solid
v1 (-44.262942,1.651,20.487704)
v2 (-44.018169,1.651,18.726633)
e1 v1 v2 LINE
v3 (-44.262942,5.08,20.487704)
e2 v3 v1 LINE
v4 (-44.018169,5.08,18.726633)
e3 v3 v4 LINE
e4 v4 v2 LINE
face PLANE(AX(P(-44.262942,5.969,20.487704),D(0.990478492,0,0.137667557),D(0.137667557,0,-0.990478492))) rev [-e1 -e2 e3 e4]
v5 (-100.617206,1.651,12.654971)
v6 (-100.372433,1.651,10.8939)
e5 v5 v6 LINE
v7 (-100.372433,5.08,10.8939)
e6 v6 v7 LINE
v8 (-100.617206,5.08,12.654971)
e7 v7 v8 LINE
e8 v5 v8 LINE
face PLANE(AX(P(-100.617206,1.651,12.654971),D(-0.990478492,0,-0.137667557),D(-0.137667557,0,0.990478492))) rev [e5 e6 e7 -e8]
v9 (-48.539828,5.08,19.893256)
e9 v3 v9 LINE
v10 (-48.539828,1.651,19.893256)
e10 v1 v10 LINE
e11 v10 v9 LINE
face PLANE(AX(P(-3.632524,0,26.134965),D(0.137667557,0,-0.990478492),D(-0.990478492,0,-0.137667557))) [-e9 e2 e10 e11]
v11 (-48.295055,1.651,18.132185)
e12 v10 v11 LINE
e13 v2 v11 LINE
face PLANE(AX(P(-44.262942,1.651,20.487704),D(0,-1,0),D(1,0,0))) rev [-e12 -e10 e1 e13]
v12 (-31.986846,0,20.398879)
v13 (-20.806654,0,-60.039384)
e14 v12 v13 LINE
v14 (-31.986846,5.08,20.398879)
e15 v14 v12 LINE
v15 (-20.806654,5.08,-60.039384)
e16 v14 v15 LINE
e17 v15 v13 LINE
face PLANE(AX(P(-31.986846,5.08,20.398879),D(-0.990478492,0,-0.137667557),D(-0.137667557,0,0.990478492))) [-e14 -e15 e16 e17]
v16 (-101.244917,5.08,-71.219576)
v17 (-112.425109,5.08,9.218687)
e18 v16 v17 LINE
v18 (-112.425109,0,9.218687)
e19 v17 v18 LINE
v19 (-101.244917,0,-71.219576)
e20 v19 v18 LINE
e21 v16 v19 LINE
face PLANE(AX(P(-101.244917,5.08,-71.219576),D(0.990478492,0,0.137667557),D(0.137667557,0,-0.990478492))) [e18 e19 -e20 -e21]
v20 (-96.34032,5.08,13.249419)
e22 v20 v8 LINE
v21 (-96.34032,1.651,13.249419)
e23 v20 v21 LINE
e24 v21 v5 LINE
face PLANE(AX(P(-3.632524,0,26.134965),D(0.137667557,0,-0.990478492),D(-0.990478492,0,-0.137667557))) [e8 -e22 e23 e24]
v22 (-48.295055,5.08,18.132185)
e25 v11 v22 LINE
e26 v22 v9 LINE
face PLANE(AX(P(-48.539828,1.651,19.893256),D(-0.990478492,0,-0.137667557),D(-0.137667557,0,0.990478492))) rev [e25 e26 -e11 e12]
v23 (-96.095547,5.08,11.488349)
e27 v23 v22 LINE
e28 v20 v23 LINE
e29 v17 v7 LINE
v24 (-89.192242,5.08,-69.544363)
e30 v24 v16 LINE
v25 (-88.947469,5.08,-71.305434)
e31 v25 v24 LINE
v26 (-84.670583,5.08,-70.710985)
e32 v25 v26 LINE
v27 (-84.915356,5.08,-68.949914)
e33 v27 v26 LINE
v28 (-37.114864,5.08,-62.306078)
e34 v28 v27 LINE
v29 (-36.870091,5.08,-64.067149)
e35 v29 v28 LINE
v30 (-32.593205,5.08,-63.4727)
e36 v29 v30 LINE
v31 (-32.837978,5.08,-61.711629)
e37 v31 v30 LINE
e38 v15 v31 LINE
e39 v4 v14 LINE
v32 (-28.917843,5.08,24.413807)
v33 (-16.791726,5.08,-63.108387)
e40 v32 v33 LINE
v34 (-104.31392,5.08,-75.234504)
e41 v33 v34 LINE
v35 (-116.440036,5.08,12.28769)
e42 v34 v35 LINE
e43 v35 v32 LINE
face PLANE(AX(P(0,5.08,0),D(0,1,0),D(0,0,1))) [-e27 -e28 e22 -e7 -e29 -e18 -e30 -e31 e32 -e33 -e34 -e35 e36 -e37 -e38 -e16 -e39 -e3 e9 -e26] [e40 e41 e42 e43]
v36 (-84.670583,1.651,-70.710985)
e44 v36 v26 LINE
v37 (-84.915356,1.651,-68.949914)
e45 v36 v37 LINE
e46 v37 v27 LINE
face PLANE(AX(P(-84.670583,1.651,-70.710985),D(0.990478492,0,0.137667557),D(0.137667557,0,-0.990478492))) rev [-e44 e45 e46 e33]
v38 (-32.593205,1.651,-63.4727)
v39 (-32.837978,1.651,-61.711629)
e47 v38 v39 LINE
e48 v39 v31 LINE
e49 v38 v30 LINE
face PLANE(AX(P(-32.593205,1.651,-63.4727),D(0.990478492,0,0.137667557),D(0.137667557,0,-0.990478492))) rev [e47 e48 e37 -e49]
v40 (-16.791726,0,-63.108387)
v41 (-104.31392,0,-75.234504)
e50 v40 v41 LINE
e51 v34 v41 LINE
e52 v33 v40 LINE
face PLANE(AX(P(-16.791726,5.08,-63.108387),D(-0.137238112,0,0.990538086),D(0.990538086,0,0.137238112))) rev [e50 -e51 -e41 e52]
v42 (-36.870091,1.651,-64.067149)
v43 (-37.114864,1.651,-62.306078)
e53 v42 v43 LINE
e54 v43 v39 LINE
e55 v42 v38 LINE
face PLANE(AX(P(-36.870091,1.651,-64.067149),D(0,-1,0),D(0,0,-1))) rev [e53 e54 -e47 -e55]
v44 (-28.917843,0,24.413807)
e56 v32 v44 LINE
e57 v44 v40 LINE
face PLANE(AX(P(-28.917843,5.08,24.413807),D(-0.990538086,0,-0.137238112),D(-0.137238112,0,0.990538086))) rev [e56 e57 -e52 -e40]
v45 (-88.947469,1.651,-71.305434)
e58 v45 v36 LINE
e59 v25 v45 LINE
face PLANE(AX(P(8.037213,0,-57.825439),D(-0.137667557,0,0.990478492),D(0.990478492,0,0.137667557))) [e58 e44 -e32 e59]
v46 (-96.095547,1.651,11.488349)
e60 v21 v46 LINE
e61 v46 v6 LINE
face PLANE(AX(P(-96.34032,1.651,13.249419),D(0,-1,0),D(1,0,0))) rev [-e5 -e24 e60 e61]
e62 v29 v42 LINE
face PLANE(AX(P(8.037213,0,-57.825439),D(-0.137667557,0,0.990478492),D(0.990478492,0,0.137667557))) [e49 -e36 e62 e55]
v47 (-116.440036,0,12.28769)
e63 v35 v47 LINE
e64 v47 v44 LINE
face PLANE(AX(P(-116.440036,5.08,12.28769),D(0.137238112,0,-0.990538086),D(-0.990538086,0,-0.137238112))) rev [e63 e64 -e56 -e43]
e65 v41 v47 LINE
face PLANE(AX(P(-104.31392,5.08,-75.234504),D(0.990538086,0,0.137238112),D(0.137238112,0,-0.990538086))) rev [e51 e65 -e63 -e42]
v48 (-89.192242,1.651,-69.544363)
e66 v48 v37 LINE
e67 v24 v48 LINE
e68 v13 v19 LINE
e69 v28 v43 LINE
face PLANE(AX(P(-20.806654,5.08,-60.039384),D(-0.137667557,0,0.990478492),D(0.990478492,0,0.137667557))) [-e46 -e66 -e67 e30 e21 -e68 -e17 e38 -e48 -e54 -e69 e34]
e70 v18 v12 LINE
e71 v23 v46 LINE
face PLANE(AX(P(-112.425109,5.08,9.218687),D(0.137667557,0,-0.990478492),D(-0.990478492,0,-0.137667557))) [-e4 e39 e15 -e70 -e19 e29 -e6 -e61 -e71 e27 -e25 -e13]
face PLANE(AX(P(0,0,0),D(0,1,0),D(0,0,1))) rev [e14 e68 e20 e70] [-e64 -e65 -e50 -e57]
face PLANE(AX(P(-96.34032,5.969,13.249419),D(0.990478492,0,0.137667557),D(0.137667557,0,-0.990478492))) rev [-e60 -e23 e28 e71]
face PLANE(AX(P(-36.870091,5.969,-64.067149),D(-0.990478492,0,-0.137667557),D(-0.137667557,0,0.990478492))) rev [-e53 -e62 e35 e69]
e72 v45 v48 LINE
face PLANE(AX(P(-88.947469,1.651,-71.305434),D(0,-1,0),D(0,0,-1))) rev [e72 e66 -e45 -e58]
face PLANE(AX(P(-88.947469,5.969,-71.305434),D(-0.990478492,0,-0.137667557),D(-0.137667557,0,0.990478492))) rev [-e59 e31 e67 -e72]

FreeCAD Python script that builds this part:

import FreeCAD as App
import Part
import Sketcher
from FreeCAD import Vector
Q = App.Units.Quantity


def add_polygon(sketch, points):
    """Adds a closed chain of lines whose ends are joined by coincident constraints."""
    first, n = sketch.GeometryCount, len(points)
    for a, b in zip(points, points[1:] + points[:1]):
        sketch.addGeometry(Part.LineSegment(App.Vector(*a, 0), App.Vector(*b, 0)), False)
    for i in range(n):
        sketch.addConstraint(Sketcher.Constraint("Coincident", first + i, 2, first + (i + 1) % n, 1))

doc = App.newDocument("Part")
body = doc.addObject("PartDesign::Body", "Body")

# Sketch on XZ plane
sketch1 = body.newObject("Sketcher::SketchObject", "Sketch")
sketch1.AttachmentSupport = (doc.getObject("XZ_Plane"), [""])
sketch1.MapMode = "FlatFace"
add_polygon(sketch1, [(-29, 24), (-17, -63), (-104, -75), (-116, 12)])  # lines 0-3
add_polygon(sketch1, [(-101, -71), (-21, -60), (-32, 20), (-112, 9)])  # lines 4-7
sketch1.addConstraint([
    Sketcher.Constraint("Perpendicular", 0, 1),
    Sketcher.Constraint("Perpendicular", 1, 2),
    Sketcher.Constraint("Perpendicular", 2, 3),
    Sketcher.Constraint("Perpendicular", 4, 5),
    Sketcher.Constraint("Perpendicular", 5, 6),
    Sketcher.Constraint("Perpendicular", 6, 7),
    Sketcher.Constraint("Equal", 0, 1),
    Sketcher.Constraint("Equal", 4, 5),
    Sketcher.Constraint("Distance", 0, Q("88.358231 mm")),
    Sketcher.Constraint("Distance", 4, Q("81.211519 mm")),
    Sketcher.Constraint("DistanceX", 1, 2, -1, 1, Q("104.31392 mm")),
    Sketcher.Constraint("DistanceY", -1, 1, 2, 2, Q("12.28769 mm")),
    Sketcher.Constraint("DistanceY", -1, 1, 5, 2, Q("20.398879 mm")),
    Sketcher.Constraint("DistanceX", 6, 2, -1, 1, Q("112.425109 mm")),
    Sketcher.Constraint("DistanceX", 2, 2, 0, 2, Q("99.64831 mm")),
    Sketcher.Constraint("DistanceX", 3, 2, 4, 2, Q("8.111189 mm")),
])
pad1 = body.newObject("PartDesign::Pad", "Pad")
pad1.Profile = sketch1
pad1.Length = Q("0.2 in")
pad1.Reversed = True

# Sketch on an angled plane
sketch2 = body.newObject("Sketcher::SketchObject", "Sketch001")
sketch2.Placement = App.Placement(Vector(-3.387751, 0, 24.373894), App.Rotation(Vector(-0.990478492, 0, -0.137667557), Vector(0, 0.999999999, 0), Vector(0.137667557, 0, -0.990478492), "ZXY"))
add_polygon(sketch2, [(41, 6), (41, 1.7), (45.3, 1.7), (45.3, 6)])  # lines 0-3
sketch2.addConstraint([
    Sketcher.Constraint("Vertical", 0),
    Sketcher.Constraint("Horizontal", 1),
    Sketcher.Constraint("Vertical", 2),
    Sketcher.Constraint("Horizontal", 3),
    Sketcher.Constraint("Equal", 3, 0),
    Sketcher.Constraint("DistanceX", 1, 1, 1, 2, Q("0.17 in")),
    Sketcher.Constraint("DistanceX", -1, 1, 0, 2, Q("1.615 in")),
    Sketcher.Constraint("DistanceY", -1, 1, 0, 2, Q("0.065 in")),
])
pocket1 = body.newObject("PartDesign::Pocket", "Pocket")
pocket1.Profile = sketch2
pocket1.Length = Q("0.07 in")

# Sketch on an angled plane
sketch3 = body.newObject("Sketcher::SketchObject", "Sketch002")
sketch3.Placement = App.Placement(Vector(7.79244, 0, -56.064369), App.Rotation(Vector(0.990478492, 0, 0.137667557), Vector(0, 0.999999999, 0), Vector(-0.137667557, 0, 0.990478492), "ZXY"))
add_polygon(sketch3, [(-45.3, 6), (-45.3, 1.7), (-41, 1.7), (-41, 6)])  # lines 0-3
sketch3.addConstraint([
    Sketcher.Constraint("Vertical", 0),
    Sketcher.Constraint("Horizontal", 1),
    Sketcher.Constraint("Vertical", 2),
    Sketcher.Constraint("Horizontal", 3),
    Sketcher.Constraint("Equal", 3, 0),
    Sketcher.Constraint("DistanceX", 1, 1, 1, 2, Q("0.17 in")),
    Sketcher.Constraint("DistanceX", 0, 2, -1, 1, Q("1.785 in")),
    Sketcher.Constraint("DistanceY", -1, 1, 0, 2, Q("0.065 in")),
])
pocket2 = body.newObject("PartDesign::Pocket", "Pocket001")
pocket2.Profile = sketch3
pocket2.Length = Q("0.07 in")

# Sketch on an angled plane
sketch4 = body.newObject("Sketcher::SketchObject", "Sketch003")
sketch4.Placement = App.Placement(Vector(7.79244, 0, -56.064369), App.Rotation(Vector(0.990478492, 0, 0.137667557), Vector(0, 0.999999999, 0), Vector(-0.137667557, 0, 0.990478492), "ZXY"))
add_polygon(sketch4, [(-97.9, 6), (-97.9, 1.7), (-93.6, 1.7), (-93.6, 6)])  # lines 0-3
sketch4.addConstraint([
    Sketcher.Constraint("Vertical", 0),
    Sketcher.Constraint("Horizontal", 1),
    Sketcher.Constraint("Vertical", 2),
    Sketcher.Constraint("Horizontal", 3),
    Sketcher.Constraint("Equal", 3, 0),
    Sketcher.Constraint("DistanceX", 1, 1, 1, 2, Q("0.17 in")),
    Sketcher.Constraint("DistanceX", 0, 2, -1, 1, Q("3.855 in")),
    Sketcher.Constraint("DistanceY", -1, 1, 0, 2, Q("0.065 in")),
])
pocket3 = body.newObject("PartDesign::Pocket", "Pocket002")
pocket3.Profile = sketch4
pocket3.Length = Q("0.07 in")

# Sketch on an angled plane
sketch5 = body.newObject("Sketcher::SketchObject", "Sketch004")
sketch5.Placement = App.Placement(Vector(-3.387751, 0, 24.373894), App.Rotation(Vector(-0.990478492, 0, -0.137667557), Vector(0, 0.999999999, 0), Vector(0.137667557, 0, -0.990478492), "ZXY"))
add_polygon(sketch5, [(93.6, 6), (93.6, 1.7), (97.9, 1.7), (97.9, 6)])  # lines 0-3
sketch5.addConstraint([
    Sketcher.Constraint("Vertical", 0),
    Sketcher.Constraint("Horizontal", 1),
    Sketcher.Constraint("Vertical", 2),
    Sketcher.Constraint("Horizontal", 3),
    Sketcher.Constraint("Equal", 3, 0),
    Sketcher.Constraint("DistanceX", 1, 1, 1, 2, Q("0.17 in")),
    Sketcher.Constraint("DistanceX", -1, 1, 0, 2, Q("3.685 in")),
    Sketcher.Constraint("DistanceY", -1, 1, 0, 2, Q("0.065 in")),
])
pocket4 = body.newObject("PartDesign::Pocket", "Pocket003")
pocket4.Profile = sketch5
pocket4.Length = Q("0.07 in")

doc.recompute()
